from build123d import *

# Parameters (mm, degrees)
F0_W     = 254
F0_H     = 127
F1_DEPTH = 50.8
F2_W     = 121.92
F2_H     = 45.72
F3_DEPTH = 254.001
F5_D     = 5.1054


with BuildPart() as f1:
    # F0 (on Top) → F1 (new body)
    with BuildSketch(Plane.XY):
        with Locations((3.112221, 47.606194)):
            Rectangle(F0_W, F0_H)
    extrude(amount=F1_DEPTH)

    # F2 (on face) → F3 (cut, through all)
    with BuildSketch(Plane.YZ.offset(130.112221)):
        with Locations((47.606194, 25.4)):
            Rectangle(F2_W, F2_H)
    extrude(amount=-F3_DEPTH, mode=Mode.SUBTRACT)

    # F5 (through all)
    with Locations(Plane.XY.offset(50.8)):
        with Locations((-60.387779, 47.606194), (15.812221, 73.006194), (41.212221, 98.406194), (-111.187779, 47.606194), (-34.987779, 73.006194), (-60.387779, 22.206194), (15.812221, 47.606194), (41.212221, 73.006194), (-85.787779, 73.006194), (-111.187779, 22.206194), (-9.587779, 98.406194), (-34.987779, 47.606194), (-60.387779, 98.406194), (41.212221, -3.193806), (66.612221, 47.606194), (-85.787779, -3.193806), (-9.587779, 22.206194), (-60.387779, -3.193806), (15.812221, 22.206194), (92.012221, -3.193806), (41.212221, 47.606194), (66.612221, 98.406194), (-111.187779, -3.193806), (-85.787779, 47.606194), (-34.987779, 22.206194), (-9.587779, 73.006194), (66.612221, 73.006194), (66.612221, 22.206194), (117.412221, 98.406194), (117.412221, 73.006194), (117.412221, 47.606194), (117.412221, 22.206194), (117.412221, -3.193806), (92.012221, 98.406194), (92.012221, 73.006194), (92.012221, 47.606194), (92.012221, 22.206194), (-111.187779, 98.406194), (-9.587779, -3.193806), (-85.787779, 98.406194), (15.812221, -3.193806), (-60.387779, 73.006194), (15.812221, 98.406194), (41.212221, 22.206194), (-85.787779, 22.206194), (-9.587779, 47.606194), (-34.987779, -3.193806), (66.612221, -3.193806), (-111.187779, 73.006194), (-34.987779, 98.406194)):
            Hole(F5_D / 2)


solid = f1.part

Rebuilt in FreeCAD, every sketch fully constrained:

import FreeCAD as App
import Part
import Sketcher
Q = App.Units.Quantity


def add_polygon(sketch, points):
    """Adds a closed chain of lines whose ends are joined by coincident constraints."""
    first, n = sketch.GeometryCount, len(points)
    for a, b in zip(points, points[1:] + points[:1]):
        sketch.addGeometry(Part.LineSegment(App.Vector(*a, 0), App.Vector(*b, 0)), False)
    for i in range(n):
        sketch.addConstraint(Sketcher.Constraint("Coincident", first + i, 2, first + (i + 1) % n, 1))

doc = App.newDocument("Part")
body = doc.addObject("PartDesign::Body", "Body")

# Sketch on XY plane
sketch1 = doc.addObject("Sketcher::SketchObject", "Sketch")
body.addObject(sketch1)
sketch1.AttachmentSupport = (doc.XY_Plane, [""])
sketch1.MapMode = "FlatFace"
add_polygon(sketch1, [(-124, 111), (-124, -16), (130, -16), (130, 111)])  # lines 0-3
sketch1.addConstraint(Sketcher.Constraint("Vertical", 0))
sketch1.addConstraint(Sketcher.Constraint("Horizontal", 1))
sketch1.addConstraint(Sketcher.Constraint("Vertical", 2))
sketch1.addConstraint(Sketcher.Constraint("Horizontal", 3))
sketch1.addConstraint(Sketcher.Constraint("DistanceX", 1, 1, 1, 2, Q("10 in")))
sketch1.addConstraint(Sketcher.Constraint("DistanceY", 0, 2, 0, 1, Q("5 in")))
sketch1.addConstraint(Sketcher.Constraint("DistanceX", 0, 2, -1, 1, Q("123.887779 mm")))
sketch1.addConstraint(Sketcher.Constraint("DistanceY", 0, 2, -1, 1, Q("15.893806 mm")))
pad1 = doc.addObject("PartDesign::Pad", "Pad")
body.addObject(pad1)
pad1.Profile = sketch1
pad1.Length = Q("2 in")

# Sketch on YZ plane
sketch2 = doc.addObject("Sketcher::SketchObject", "Sketch001")
body.addObject(sketch2)
sketch2.AttachmentSupport = (doc.YZ_Plane, [""])
sketch2.MapMode = "FlatFace"
sketch2.AttachmentOffset = App.Placement(App.Vector(0, 0, 130.112221), App.Rotation())
add_polygon(sketch2, [(-13, 48), (-13, 3), (109, 3), (109, 48)])  # lines 0-3
sketch2.addConstraint(Sketcher.Constraint("Vertical", 0))
sketch2.addConstraint(Sketcher.Constraint("Horizontal", 1))
sketch2.addConstraint(Sketcher.Constraint("Vertical", 2))
sketch2.addConstraint(Sketcher.Constraint("Horizontal", 3))
sketch2.addConstraint(Sketcher.Constraint("DistanceX", 1, 1, 1, 2, Q("4.8 in")))
sketch2.addConstraint(Sketcher.Constraint("DistanceY", 0, 2, 0, 1, Q("1.8 in")))
sketch2.addConstraint(Sketcher.Constraint("DistanceY", -1, 1, 0, 2, Q("0.1 in")))
sketch2.addConstraint(Sketcher.Constraint("DistanceX", 0, 2, -1, 1, Q("13.353806 mm")))
pocket1 = doc.addObject("PartDesign::Pocket", "Pocket")
body.addObject(pocket1)
pocket1.Profile = sketch2
pocket1.Type = "ThroughAll"

# Sketch on XY plane
sketch3 = doc.addObject("Sketcher::SketchObject", "Sketch002")
body.addObject(sketch3)
sketch3.AttachmentSupport = (doc.XY_Plane, [""])
sketch3.MapMode = "FlatFace"
sketch3.AttachmentOffset = App.Placement(App.Vector(0, 0, 2 * 25.4), App.Rotation())
sketch3.addGeometry(Part.Circle(App.Vector(-60.4, 47.6, 0), App.Vector(0, 0, 1), 2.6), False)
sketch3.addGeometry(Part.Circle(App.Vector(15.8, 73, 0), App.Vector(0, 0, 1), 2.6), False)
sketch3.addGeometry(Part.Circle(App.Vector(41.2, 98.4, 0), App.Vector(0, 0, 1), 2.6), False)
sketch3.addGeometry(Part.Circle(App.Vector(-111.2, 47.6, 0), App.Vector(0, 0, 1), 2.6), False)
sketch3.addGeometry(Part.Circle(App.Vector(-35, 73, 0), App.Vector(0, 0, 1), 2.6), False)
sketch3.addGeometry(Part.Circle(App.Vector(-60.4, 22.2, 0), App.Vector(0, 0, 1), 2.6), False)
sketch3.addGeometry(Part.Circle(App.Vector(15.8, 47.6, 0), App.Vector(0, 0, 1), 2.6), False)
sketch3.addGeometry(Part.Circle(App.Vector(41.2, 73, 0), App.Vector(0, 0, 1), 2.6), False)
sketch3.addGeometry(Part.Circle(App.Vector(-85.8, 73, 0), App.Vector(0, 0, 1), 2.6), False)
sketch3.addGeometry(Part.Circle(App.Vector(-111.2, 22.2, 0), App.Vector(0, 0, 1), 2.6), False)
sketch3.addGeometry(Part.Circle(App.Vector(-9.6, 98.4, 0), App.Vector(0, 0, 1), 2.6), False)
sketch3.addGeometry(Part.Circle(App.Vector(-35, 47.6, 0), App.Vector(0, 0, 1), 2.6), False)
sketch3.addGeometry(Part.Circle(App.Vector(-60.4, 98.4, 0), App.Vector(0, 0, 1), 2.6), False)
sketch3.addGeometry(Part.Circle(App.Vector(41.2, -3.2, 0), App.Vector(0, 0, 1), 2.6), False)
sketch3.addGeometry(Part.Circle(App.Vector(66.6, 47.6, 0), App.Vector(0, 0, 1), 2.6), False)
sketch3.addGeometry(Part.Circle(App.Vector(-85.8, -3.2, 0), App.Vector(0, 0, 1), 2.6), False)
sketch3.addGeometry(Part.Circle(App.Vector(-9.6, 22.2, 0), App.Vector(0, 0, 1), 2.6), False)
sketch3.addGeometry(Part.Circle(App.Vector(-60.4, -3.2, 0), App.Vector(0, 0, 1), 2.6), False)
sketch3.addGeometry(Part.Circle(App.Vector(15.8, 22.2, 0), App.Vector(0, 0, 1), 2.6), False)
sketch3.addGeometry(Part.Circle(App.Vector(92, -3.2, 0), App.Vector(0, 0, 1), 2.6), False)
sketch3.addGeometry(Part.Circle(App.Vector(41.2, 47.6, 0), App.Vector(0, 0, 1), 2.6), False)
sketch3.addGeometry(Part.Circle(App.Vector(66.6, 98.4, 0), App.Vector(0, 0, 1), 2.6), False)
sketch3.addGeometry(Part.Circle(App.Vector(-111.2, -3.2, 0), App.Vector(0, 0, 1), 2.6), False)
sketch3.addGeometry(Part.Circle(App.Vector(-85.8, 47.6, 0), App.Vector(0, 0, 1), 2.6), False)
sketch3.addGeometry(Part.Circle(App.Vector(-35, 22.2, 0), App.Vector(0, 0, 1), 2.6), False)
sketch3.addGeometry(Part.Circle(App.Vector(-9.6, 73, 0), App.Vector(0, 0, 1), 2.6), False)
sketch3.addGeometry(Part.Circle(App.Vector(66.6, 73, 0), App.Vector(0, 0, 1), 2.6), False)
sketch3.addGeometry(Part.Circle(App.Vector(66.6, 22.2, 0), App.Vector(0, 0, 1), 2.6), False)
sketch3.addGeometry(Part.Circle(App.Vector(117.4, 98.4, 0), App.Vector(0, 0, 1), 2.6), False)
sketch3.addGeometry(Part.Circle(App.Vector(117.4, 73, 0), App.Vector(0, 0, 1), 2.6), False)
sketch3.addGeometry(Part.Circle(App.Vector(117.4, 47.6, 0), App.Vector(0, 0, 1), 2.6), False)
sketch3.addGeometry(Part.Circle(App.Vector(117.4, 22.2, 0), App.Vector(0, 0, 1), 2.6), False)
sketch3.addGeometry(Part.Circle(App.Vector(117.4, -3.2, 0), App.Vector(0, 0, 1), 2.6), False)
sketch3.addGeometry(Part.Circle(App.Vector(92, 98.4, 0), App.Vector(0, 0, 1), 2.6), False)
sketch3.addGeometry(Part.Circle(App.Vector(92, 73, 0), App.Vector(0, 0, 1), 2.6), False)
sketch3.addGeometry(Part.Circle(App.Vector(92, 47.6, 0), App.Vector(0, 0, 1), 2.6), False)
sketch3.addGeometry(Part.Circle(App.Vector(92, 22.2, 0), App.Vector(0, 0, 1), 2.6), False)
sketch3.addGeometry(Part.Circle(App.Vector(-111.2, 98.4, 0), App.Vector(0, 0, 1), 2.6), False)
sketch3.addGeometry(Part.Circle(App.Vector(-9.6, -3.2, 0), App.Vector(0, 0, 1), 2.6), False)
sketch3.addGeometry(Part.Circle(App.Vector(-85.8, 98.4, 0), App.Vector(0, 0, 1), 2.6), False)
sketch3.addGeometry(Part.Circle(App.Vector(15.8, -3.2, 0), App.Vector(0, 0, 1), 2.6), False)
sketch3.addGeometry(Part.Circle(App.Vector(-60.4, 73, 0), App.Vector(0, 0, 1), 2.6), False)
sketch3.addGeometry(Part.Circle(App.Vector(15.8, 98.4, 0), App.Vector(0, 0, 1), 2.6), False)
sketch3.addGeometry(Part.Circle(App.Vector(41.2, 22.2, 0), App.Vector(0, 0, 1), 2.6), False)
sketch3.addGeometry(Part.Circle(App.Vector(-85.8, 22.2, 0), App.Vector(0, 0, 1), 2.6), False)
sketch3.addGeometry(Part.Circle(App.Vector(-9.6, 47.6, 0), App.Vector(0, 0, 1), 2.6), False)
sketch3.addGeometry(Part.Circle(App.Vector(-35, -3.2, 0), App.Vector(0, 0, 1), 2.6), False)
sketch3.addGeometry(Part.Circle(App.Vector(66.6, -3.2, 0), App.Vector(0, 0, 1), 2.6), False)
sketch3.addGeometry(Part.Circle(App.Vector(-111.2, 73, 0), App.Vector(0, 0, 1), 2.6), False)
sketch3.addGeometry(Part.Circle(App.Vector(-35, 98.4, 0), App.Vector(0, 0, 1), 2.6), False)
sketch3.addConstraint(Sketcher.Constraint("Equal", 0, 1))
sketch3.addConstraint(Sketcher.Constraint("Equal", 1, 2))
sketch3.addConstraint(Sketcher.Constraint("Equal", 2, 3))
sketch3.addConstraint(Sketcher.Constraint("Equal", 3, 4))
sketch3.addConstraint(Sketcher.Constraint("Equal", 4, 5))
sketch3.addConstraint(Sketcher.Constraint("Equal", 5, 6))
sketch3.addConstraint(Sketcher.Constraint("Equal", 6, 7))
sketch3.addConstraint(Sketcher.Constraint("Equal", 7, 8))
sketch3.addConstraint(Sketcher.Constraint("Equal", 8, 9))
sketch3.addConstraint(Sketcher.Constraint("Equal", 9, 10))
sketch3.addConstraint(Sketcher.Constraint("Equal", 10, 11))
sketch3.addConstraint(Sketcher.Constraint("Equal", 11, 12))
sketch3.addConstraint(Sketcher.Constraint("Equal", 12, 13))
sketch3.addConstraint(Sketcher.Constraint("Equal", 13, 14))
sketch3.addConstraint(Sketcher.Constraint("Equal", 14, 15))
sketch3.addConstraint(Sketcher.Constraint("Equal", 15, 16))
sketch3.addConstraint(Sketcher.Constraint("Equal", 16, 17))
sketch3.addConstraint(Sketcher.Constraint("Equal", 17, 18))
sketch3.addConstraint(Sketcher.Constraint("Equal", 18, 19))
sketch3.addConstraint(Sketcher.Constraint("Equal", 19, 20))
sketch3.addConstraint(Sketcher.Constraint("Equal", 20, 21))
sketch3.addConstraint(Sketcher.Constraint("Equal", 21, 22))
sketch3.addConstraint(Sketcher.Constraint("Equal", 22, 23))
sketch3.addConstraint(Sketcher.Constraint("Equal", 23, 24))
sketch3.addConstraint(Sketcher.Constraint("Equal", 24, 25))
sketch3.addConstraint(Sketcher.Constraint("Equal", 25, 26))
sketch3.addConstraint(Sketcher.Constraint("Equal", 26, 27))
sketch3.addConstraint(Sketcher.Constraint("Equal", 27, 28))
sketch3.addConstraint(Sketcher.Constraint("Equal", 28, 29))
sketch3.addConstraint(Sketcher.Constraint("Equal", 29, 30))
sketch3.addConstraint(Sketcher.Constraint("Equal", 30, 31))
sketch3.addConstraint(Sketcher.Constraint("Equal", 31, 32))
sketch3.addConstraint(Sketcher.Constraint("Equal", 32, 33))
sketch3.addConstraint(Sketcher.Constraint("Equal", 33, 34))
sketch3.addConstraint(Sketcher.Constraint("Equal", 34, 35))
sketch3.addConstraint(Sketcher.Constraint("Equal", 35, 36))
sketch3.addConstraint(Sketcher.Constraint("Equal", 36, 37))
sketch3.addConstraint(Sketcher.Constraint("Equal", 37, 38))
sketch3.addConstraint(Sketcher.Constraint("Equal", 38, 39))
sketch3.addConstraint(Sketcher.Constraint("Equal", 39, 40))
sketch3.addConstraint(Sketcher.Constraint("Equal", 40, 41))
sketch3.addConstraint(Sketcher.Constraint("Equal", 41, 42))
sketch3.addConstraint(Sketcher.Constraint("Equal", 42, 43))
sketch3.addConstraint(Sketcher.Constraint("Equal", 43, 44))
sketch3.addConstraint(Sketcher.Constraint("Equal", 44, 45))
sketch3.addConstraint(Sketcher.Constraint("Equal", 45, 46))
sketch3.addConstraint(Sketcher.Constraint("Equal", 46, 47))
sketch3.addConstraint(Sketcher.Constraint("Equal", 47, 48))
sketch3.addConstraint(Sketcher.Constraint("Equal", 48, 49))
sketch3.addConstraint(Sketcher.Constraint("Horizontal", 0, 3, 3, 3))
sketch3.addConstraint(Sketcher.Constraint("Horizontal", 1, 3, 4, 3))
sketch3.addConstraint(Sketcher.Constraint("Horizontal", 3, 3, 6, 3))
sketch3.addConstraint(Sketcher.Constraint("Horizontal", 4, 3, 7, 3))
sketch3.addConstraint(Sketcher.Constraint("Horizontal", 7, 3, 8, 3))
sketch3.addConstraint(Sketcher.Constraint("Horizontal", 5, 3, 9, 3))
sketch3.addConstraint(Sketcher.Constraint("Horizontal", 2, 3, 10, 3))
sketch3.addConstraint(Sketcher.Constraint("Horizontal", 6, 3, 11, 3))
sketch3.addConstraint(Sketcher.Constraint("Horizontal", 10, 3, 12, 3))
sketch3.addConstraint(Sketcher.Constraint("Horizontal", 11, 3, 14, 3))
sketch3.addConstraint(Sketcher.Constraint("Horizontal", 13, 3, 15, 3))
sketch3.addConstraint(Sketcher.Constraint("Horizontal", 9, 3, 16, 3))
sketch3.addConstraint(Sketcher.Constraint("Horizontal", 15, 3, 17, 3))
sketch3.addConstraint(Sketcher.Constraint("Horizontal", 16, 3, 18, 3))
sketch3.addConstraint(Sketcher.Constraint("Horizontal", 17, 3, 19, 3))
sketch3.addConstraint(Sketcher.Constraint("Horizontal", 14, 3, 20, 3))
sketch3.addConstraint(Sketcher.Constraint("Horizontal", 12, 3, 21, 3))
sketch3.addConstraint(Sketcher.Constraint("Horizontal", 19, 3, 22, 3))
sketch3.addConstraint(Sketcher.Constraint("Horizontal", 20, 3, 23, 3))
sketch3.addConstraint(Sketcher.Constraint("Horizontal", 18, 3, 24, 3))
sketch3.addConstraint(Sketcher.Constraint("Horizontal", 8, 3, 25, 3))
sketch3.addConstraint(Sketcher.Constraint("Horizontal", 25, 3, 26, 3))
sketch3.addConstraint(Sketcher.Constraint("Horizontal", 24, 3, 27, 3))
sketch3.addConstraint(Sketcher.Constraint("Horizontal", 21, 3, 28, 3))
sketch3.addConstraint(Sketcher.Constraint("Horizontal", 26, 3, 29, 3))
sketch3.addConstraint(Sketcher.Constraint("Horizontal", 23, 3, 30, 3))
sketch3.addConstraint(Sketcher.Constraint("Horizontal", 27, 3, 31, 3))
sketch3.addConstraint(Sketcher.Constraint("Horizontal", 22, 3, 32, 3))
sketch3.addConstraint(Sketcher.Constraint("Horizontal", 28, 3, 33, 3))
sketch3.addConstraint(Sketcher.Constraint("Horizontal", 29, 3, 34, 3))
sketch3.addConstraint(Sketcher.Constraint("Horizontal", 30, 3, 35, 3))
sketch3.addConstraint(Sketcher.Constraint("Horizontal", 31, 3, 36, 3))
sketch3.addConstraint(Sketcher.Constraint("Horizontal", 33, 3, 37, 3))
sketch3.addConstraint(Sketcher.Constraint("Horizontal", 32, 3, 38, 3))
sketch3.addConstraint(Sketcher.Constraint("Horizontal", 37, 3, 39, 3))
sketch3.addConstraint(Sketcher.Constraint("Horizontal", 38, 3, 40, 3))
sketch3.addConstraint(Sketcher.Constraint("Horizontal", 34, 3, 41, 3))
sketch3.addConstraint(Sketcher.Constraint("Horizontal", 39, 3, 42, 3))
sketch3.addConstraint(Sketcher.Constraint("Horizontal", 36, 3, 43, 3))
sketch3.addConstraint(Sketcher.Constraint("Horizontal", 43, 3, 44, 3))
sketch3.addConstraint(Sketcher.Constraint("Horizontal", 35, 3, 45, 3))
sketch3.addConstraint(Sketcher.Constraint("Horizontal", 40, 3, 46, 3))
sketch3.addConstraint(Sketcher.Constraint("Horizontal", 46, 3, 47, 3))
sketch3.addConstraint(Sketcher.Constraint("Horizontal", 41, 3, 48, 3))
sketch3.addConstraint(Sketcher.Constraint("Horizontal", 42, 3, 49, 3))
sketch3.addConstraint(Sketcher.Constraint("Vertical", 0, 3, 5, 3))
sketch3.addConstraint(Sketcher.Constraint("Vertical", 1, 3, 6, 3))
sketch3.addConstraint(Sketcher.Constraint("Vertical", 2, 3, 7, 3))
sketch3.addConstraint(Sketcher.Constraint("Vertical", 3, 3, 9, 3))
sketch3.addConstraint(Sketcher.Constraint("Vertical", 4, 3, 11, 3))
sketch3.addConstraint(Sketcher.Constraint("Vertical", 5, 3, 12, 3))
sketch3.addConstraint(Sketcher.Constraint("Vertical", 7, 3, 13, 3))
sketch3.addConstraint(Sketcher.Constraint("Vertical", 8, 3, 15, 3))
sketch3.addConstraint(Sketcher.Constraint("Vertical", 10, 3, 16, 3))
sketch3.addConstraint(Sketcher.Constraint("Vertical", 12, 3, 17, 3))
sketch3.addConstraint(Sketcher.Constraint("Vertical", 6, 3, 18, 3))
sketch3.addConstraint(Sketcher.Constraint("Vertical", 13, 3, 20, 3))
sketch3.addConstraint(Sketcher.Constraint("Vertical", 14, 3, 21, 3))
sketch3.addConstraint(Sketcher.Constraint("Vertical", 9, 3, 22, 3))
sketch3.addConstraint(Sketcher.Constraint("Vertical", 15, 3, 23, 3))
sketch3.addConstraint(Sketcher.Constraint("Vertical", 11, 3, 24, 3))
sketch3.addConstraint(Sketcher.Constraint("Vertical", 16, 3, 25, 3))
sketch3.addConstraint(Sketcher.Constraint("Vertical", 21, 3, 26, 3))
sketch3.addConstraint(Sketcher.Constraint("Vertical", 26, 3, 27, 3))
sketch3.addConstraint(Sketcher.Constraint("Vertical", 28, 3, 29, 3))
sketch3.addConstraint(Sketcher.Constraint("Vertical", 29, 3, 30, 3))
sketch3.addConstraint(Sketcher.Constraint("Vertical", 30, 3, 31, 3))
sketch3.addConstraint(Sketcher.Constraint("Vertical", 31, 3, 32, 3))
sketch3.addConstraint(Sketcher.Constraint("Vertical", 19, 3, 33, 3))
sketch3.addConstraint(Sketcher.Constraint("Vertical", 33, 3, 34, 3))
sketch3.addConstraint(Sketcher.Constraint("Vertical", 34, 3, 35, 3))
sketch3.addConstraint(Sketcher.Constraint("Vertical", 35, 3, 36, 3))
sketch3.addConstraint(Sketcher.Constraint("Vertical", 22, 3, 37, 3))
sketch3.addConstraint(Sketcher.Constraint("Vertical", 25, 3, 38, 3))
sketch3.addConstraint(Sketcher.Constraint("Vertical", 23, 3, 39, 3))
sketch3.addConstraint(Sketcher.Constraint("Vertical", 18, 3, 40, 3))
sketch3.addConstraint(Sketcher.Constraint("Vertical", 17, 3, 41, 3))
sketch3.addConstraint(Sketcher.Constraint("Vertical", 40, 3, 42, 3))
sketch3.addConstraint(Sketcher.Constraint("Vertical", 20, 3, 43, 3))
sketch3.addConstraint(Sketcher.Constraint("Vertical", 39, 3, 44, 3))
sketch3.addConstraint(Sketcher.Constraint("Vertical", 38, 3, 45, 3))
sketch3.addConstraint(Sketcher.Constraint("Vertical", 24, 3, 46, 3))
sketch3.addConstraint(Sketcher.Constraint("Vertical", 27, 3, 47, 3))
sketch3.addConstraint(Sketcher.Constraint("Vertical", 37, 3, 48, 3))
sketch3.addConstraint(Sketcher.Constraint("Vertical", 46, 3, 49, 3))
sketch3.addConstraint(Sketcher.Constraint("Diameter", 0, Q("0.201 in")))
sketch3.addConstraint(Sketcher.Constraint("DistanceX", 0, 3, 1, 3, Q("3 in")))
sketch3.addConstraint(Sketcher.Constraint("DistanceY", 0, 3, 1, 3, Q("1 in")))
sketch3.addConstraint(Sketcher.Constraint("DistanceX", 1, 3, 2, 3, Q("1 in")))
sketch3.addConstraint(Sketcher.Constraint("DistanceY", 1, 3, 2, 3, Q("1 in")))
sketch3.addConstraint(Sketcher.Constraint("DistanceX", 3, 3, 0, 3, Q("2 in")))
sketch3.addConstraint(Sketcher.Constraint("DistanceX", 0, 3, 4, 3, Q("1 in")))
sketch3.addConstraint(Sketcher.Constraint("DistanceY", 5, 3, 0, 3, Q("1 in")))
sketch3.addConstraint(Sketcher.Constraint("DistanceX", 8, 3, 0, 3, Q("1 in")))
sketch3.addConstraint(Sketcher.Constraint("DistanceX", 10, 3, 1, 3, Q("1 in")))
sketch3.addConstraint(Sketcher.Constraint("DistanceY", 13, 3, 6, 3, Q("2 in")))
sketch3.addConstraint(Sketcher.Constraint("DistanceX", 7, 3, 14, 3, Q("1 in")))
sketch3.addConstraint(Sketcher.Constraint("DistanceX", 13, 3, 19, 3, Q("2 in")))
sketch3.addConstraint(Sketcher.Constraint("DistanceX", 21, 3, 28, 3, Q("2 in")))
sketch3.addConstraint(Sketcher.Constraint("DistanceX", 0, 3, -1, 1, Q("60.387779 mm")))
sketch3.addConstraint(Sketcher.Constraint("DistanceY", -1, 1, 0, 3, Q("47.606194 mm")))
doc.recompute()
hole = doc.addObject("PartDesign::Hole", "Hole")
body.addObject(hole)
hole.Profile = sketch3
hole.ThreadType = "None"
hole.Diameter = Q("0.201 in")
hole.DepthType = "ThroughAll"

doc.recompute()
